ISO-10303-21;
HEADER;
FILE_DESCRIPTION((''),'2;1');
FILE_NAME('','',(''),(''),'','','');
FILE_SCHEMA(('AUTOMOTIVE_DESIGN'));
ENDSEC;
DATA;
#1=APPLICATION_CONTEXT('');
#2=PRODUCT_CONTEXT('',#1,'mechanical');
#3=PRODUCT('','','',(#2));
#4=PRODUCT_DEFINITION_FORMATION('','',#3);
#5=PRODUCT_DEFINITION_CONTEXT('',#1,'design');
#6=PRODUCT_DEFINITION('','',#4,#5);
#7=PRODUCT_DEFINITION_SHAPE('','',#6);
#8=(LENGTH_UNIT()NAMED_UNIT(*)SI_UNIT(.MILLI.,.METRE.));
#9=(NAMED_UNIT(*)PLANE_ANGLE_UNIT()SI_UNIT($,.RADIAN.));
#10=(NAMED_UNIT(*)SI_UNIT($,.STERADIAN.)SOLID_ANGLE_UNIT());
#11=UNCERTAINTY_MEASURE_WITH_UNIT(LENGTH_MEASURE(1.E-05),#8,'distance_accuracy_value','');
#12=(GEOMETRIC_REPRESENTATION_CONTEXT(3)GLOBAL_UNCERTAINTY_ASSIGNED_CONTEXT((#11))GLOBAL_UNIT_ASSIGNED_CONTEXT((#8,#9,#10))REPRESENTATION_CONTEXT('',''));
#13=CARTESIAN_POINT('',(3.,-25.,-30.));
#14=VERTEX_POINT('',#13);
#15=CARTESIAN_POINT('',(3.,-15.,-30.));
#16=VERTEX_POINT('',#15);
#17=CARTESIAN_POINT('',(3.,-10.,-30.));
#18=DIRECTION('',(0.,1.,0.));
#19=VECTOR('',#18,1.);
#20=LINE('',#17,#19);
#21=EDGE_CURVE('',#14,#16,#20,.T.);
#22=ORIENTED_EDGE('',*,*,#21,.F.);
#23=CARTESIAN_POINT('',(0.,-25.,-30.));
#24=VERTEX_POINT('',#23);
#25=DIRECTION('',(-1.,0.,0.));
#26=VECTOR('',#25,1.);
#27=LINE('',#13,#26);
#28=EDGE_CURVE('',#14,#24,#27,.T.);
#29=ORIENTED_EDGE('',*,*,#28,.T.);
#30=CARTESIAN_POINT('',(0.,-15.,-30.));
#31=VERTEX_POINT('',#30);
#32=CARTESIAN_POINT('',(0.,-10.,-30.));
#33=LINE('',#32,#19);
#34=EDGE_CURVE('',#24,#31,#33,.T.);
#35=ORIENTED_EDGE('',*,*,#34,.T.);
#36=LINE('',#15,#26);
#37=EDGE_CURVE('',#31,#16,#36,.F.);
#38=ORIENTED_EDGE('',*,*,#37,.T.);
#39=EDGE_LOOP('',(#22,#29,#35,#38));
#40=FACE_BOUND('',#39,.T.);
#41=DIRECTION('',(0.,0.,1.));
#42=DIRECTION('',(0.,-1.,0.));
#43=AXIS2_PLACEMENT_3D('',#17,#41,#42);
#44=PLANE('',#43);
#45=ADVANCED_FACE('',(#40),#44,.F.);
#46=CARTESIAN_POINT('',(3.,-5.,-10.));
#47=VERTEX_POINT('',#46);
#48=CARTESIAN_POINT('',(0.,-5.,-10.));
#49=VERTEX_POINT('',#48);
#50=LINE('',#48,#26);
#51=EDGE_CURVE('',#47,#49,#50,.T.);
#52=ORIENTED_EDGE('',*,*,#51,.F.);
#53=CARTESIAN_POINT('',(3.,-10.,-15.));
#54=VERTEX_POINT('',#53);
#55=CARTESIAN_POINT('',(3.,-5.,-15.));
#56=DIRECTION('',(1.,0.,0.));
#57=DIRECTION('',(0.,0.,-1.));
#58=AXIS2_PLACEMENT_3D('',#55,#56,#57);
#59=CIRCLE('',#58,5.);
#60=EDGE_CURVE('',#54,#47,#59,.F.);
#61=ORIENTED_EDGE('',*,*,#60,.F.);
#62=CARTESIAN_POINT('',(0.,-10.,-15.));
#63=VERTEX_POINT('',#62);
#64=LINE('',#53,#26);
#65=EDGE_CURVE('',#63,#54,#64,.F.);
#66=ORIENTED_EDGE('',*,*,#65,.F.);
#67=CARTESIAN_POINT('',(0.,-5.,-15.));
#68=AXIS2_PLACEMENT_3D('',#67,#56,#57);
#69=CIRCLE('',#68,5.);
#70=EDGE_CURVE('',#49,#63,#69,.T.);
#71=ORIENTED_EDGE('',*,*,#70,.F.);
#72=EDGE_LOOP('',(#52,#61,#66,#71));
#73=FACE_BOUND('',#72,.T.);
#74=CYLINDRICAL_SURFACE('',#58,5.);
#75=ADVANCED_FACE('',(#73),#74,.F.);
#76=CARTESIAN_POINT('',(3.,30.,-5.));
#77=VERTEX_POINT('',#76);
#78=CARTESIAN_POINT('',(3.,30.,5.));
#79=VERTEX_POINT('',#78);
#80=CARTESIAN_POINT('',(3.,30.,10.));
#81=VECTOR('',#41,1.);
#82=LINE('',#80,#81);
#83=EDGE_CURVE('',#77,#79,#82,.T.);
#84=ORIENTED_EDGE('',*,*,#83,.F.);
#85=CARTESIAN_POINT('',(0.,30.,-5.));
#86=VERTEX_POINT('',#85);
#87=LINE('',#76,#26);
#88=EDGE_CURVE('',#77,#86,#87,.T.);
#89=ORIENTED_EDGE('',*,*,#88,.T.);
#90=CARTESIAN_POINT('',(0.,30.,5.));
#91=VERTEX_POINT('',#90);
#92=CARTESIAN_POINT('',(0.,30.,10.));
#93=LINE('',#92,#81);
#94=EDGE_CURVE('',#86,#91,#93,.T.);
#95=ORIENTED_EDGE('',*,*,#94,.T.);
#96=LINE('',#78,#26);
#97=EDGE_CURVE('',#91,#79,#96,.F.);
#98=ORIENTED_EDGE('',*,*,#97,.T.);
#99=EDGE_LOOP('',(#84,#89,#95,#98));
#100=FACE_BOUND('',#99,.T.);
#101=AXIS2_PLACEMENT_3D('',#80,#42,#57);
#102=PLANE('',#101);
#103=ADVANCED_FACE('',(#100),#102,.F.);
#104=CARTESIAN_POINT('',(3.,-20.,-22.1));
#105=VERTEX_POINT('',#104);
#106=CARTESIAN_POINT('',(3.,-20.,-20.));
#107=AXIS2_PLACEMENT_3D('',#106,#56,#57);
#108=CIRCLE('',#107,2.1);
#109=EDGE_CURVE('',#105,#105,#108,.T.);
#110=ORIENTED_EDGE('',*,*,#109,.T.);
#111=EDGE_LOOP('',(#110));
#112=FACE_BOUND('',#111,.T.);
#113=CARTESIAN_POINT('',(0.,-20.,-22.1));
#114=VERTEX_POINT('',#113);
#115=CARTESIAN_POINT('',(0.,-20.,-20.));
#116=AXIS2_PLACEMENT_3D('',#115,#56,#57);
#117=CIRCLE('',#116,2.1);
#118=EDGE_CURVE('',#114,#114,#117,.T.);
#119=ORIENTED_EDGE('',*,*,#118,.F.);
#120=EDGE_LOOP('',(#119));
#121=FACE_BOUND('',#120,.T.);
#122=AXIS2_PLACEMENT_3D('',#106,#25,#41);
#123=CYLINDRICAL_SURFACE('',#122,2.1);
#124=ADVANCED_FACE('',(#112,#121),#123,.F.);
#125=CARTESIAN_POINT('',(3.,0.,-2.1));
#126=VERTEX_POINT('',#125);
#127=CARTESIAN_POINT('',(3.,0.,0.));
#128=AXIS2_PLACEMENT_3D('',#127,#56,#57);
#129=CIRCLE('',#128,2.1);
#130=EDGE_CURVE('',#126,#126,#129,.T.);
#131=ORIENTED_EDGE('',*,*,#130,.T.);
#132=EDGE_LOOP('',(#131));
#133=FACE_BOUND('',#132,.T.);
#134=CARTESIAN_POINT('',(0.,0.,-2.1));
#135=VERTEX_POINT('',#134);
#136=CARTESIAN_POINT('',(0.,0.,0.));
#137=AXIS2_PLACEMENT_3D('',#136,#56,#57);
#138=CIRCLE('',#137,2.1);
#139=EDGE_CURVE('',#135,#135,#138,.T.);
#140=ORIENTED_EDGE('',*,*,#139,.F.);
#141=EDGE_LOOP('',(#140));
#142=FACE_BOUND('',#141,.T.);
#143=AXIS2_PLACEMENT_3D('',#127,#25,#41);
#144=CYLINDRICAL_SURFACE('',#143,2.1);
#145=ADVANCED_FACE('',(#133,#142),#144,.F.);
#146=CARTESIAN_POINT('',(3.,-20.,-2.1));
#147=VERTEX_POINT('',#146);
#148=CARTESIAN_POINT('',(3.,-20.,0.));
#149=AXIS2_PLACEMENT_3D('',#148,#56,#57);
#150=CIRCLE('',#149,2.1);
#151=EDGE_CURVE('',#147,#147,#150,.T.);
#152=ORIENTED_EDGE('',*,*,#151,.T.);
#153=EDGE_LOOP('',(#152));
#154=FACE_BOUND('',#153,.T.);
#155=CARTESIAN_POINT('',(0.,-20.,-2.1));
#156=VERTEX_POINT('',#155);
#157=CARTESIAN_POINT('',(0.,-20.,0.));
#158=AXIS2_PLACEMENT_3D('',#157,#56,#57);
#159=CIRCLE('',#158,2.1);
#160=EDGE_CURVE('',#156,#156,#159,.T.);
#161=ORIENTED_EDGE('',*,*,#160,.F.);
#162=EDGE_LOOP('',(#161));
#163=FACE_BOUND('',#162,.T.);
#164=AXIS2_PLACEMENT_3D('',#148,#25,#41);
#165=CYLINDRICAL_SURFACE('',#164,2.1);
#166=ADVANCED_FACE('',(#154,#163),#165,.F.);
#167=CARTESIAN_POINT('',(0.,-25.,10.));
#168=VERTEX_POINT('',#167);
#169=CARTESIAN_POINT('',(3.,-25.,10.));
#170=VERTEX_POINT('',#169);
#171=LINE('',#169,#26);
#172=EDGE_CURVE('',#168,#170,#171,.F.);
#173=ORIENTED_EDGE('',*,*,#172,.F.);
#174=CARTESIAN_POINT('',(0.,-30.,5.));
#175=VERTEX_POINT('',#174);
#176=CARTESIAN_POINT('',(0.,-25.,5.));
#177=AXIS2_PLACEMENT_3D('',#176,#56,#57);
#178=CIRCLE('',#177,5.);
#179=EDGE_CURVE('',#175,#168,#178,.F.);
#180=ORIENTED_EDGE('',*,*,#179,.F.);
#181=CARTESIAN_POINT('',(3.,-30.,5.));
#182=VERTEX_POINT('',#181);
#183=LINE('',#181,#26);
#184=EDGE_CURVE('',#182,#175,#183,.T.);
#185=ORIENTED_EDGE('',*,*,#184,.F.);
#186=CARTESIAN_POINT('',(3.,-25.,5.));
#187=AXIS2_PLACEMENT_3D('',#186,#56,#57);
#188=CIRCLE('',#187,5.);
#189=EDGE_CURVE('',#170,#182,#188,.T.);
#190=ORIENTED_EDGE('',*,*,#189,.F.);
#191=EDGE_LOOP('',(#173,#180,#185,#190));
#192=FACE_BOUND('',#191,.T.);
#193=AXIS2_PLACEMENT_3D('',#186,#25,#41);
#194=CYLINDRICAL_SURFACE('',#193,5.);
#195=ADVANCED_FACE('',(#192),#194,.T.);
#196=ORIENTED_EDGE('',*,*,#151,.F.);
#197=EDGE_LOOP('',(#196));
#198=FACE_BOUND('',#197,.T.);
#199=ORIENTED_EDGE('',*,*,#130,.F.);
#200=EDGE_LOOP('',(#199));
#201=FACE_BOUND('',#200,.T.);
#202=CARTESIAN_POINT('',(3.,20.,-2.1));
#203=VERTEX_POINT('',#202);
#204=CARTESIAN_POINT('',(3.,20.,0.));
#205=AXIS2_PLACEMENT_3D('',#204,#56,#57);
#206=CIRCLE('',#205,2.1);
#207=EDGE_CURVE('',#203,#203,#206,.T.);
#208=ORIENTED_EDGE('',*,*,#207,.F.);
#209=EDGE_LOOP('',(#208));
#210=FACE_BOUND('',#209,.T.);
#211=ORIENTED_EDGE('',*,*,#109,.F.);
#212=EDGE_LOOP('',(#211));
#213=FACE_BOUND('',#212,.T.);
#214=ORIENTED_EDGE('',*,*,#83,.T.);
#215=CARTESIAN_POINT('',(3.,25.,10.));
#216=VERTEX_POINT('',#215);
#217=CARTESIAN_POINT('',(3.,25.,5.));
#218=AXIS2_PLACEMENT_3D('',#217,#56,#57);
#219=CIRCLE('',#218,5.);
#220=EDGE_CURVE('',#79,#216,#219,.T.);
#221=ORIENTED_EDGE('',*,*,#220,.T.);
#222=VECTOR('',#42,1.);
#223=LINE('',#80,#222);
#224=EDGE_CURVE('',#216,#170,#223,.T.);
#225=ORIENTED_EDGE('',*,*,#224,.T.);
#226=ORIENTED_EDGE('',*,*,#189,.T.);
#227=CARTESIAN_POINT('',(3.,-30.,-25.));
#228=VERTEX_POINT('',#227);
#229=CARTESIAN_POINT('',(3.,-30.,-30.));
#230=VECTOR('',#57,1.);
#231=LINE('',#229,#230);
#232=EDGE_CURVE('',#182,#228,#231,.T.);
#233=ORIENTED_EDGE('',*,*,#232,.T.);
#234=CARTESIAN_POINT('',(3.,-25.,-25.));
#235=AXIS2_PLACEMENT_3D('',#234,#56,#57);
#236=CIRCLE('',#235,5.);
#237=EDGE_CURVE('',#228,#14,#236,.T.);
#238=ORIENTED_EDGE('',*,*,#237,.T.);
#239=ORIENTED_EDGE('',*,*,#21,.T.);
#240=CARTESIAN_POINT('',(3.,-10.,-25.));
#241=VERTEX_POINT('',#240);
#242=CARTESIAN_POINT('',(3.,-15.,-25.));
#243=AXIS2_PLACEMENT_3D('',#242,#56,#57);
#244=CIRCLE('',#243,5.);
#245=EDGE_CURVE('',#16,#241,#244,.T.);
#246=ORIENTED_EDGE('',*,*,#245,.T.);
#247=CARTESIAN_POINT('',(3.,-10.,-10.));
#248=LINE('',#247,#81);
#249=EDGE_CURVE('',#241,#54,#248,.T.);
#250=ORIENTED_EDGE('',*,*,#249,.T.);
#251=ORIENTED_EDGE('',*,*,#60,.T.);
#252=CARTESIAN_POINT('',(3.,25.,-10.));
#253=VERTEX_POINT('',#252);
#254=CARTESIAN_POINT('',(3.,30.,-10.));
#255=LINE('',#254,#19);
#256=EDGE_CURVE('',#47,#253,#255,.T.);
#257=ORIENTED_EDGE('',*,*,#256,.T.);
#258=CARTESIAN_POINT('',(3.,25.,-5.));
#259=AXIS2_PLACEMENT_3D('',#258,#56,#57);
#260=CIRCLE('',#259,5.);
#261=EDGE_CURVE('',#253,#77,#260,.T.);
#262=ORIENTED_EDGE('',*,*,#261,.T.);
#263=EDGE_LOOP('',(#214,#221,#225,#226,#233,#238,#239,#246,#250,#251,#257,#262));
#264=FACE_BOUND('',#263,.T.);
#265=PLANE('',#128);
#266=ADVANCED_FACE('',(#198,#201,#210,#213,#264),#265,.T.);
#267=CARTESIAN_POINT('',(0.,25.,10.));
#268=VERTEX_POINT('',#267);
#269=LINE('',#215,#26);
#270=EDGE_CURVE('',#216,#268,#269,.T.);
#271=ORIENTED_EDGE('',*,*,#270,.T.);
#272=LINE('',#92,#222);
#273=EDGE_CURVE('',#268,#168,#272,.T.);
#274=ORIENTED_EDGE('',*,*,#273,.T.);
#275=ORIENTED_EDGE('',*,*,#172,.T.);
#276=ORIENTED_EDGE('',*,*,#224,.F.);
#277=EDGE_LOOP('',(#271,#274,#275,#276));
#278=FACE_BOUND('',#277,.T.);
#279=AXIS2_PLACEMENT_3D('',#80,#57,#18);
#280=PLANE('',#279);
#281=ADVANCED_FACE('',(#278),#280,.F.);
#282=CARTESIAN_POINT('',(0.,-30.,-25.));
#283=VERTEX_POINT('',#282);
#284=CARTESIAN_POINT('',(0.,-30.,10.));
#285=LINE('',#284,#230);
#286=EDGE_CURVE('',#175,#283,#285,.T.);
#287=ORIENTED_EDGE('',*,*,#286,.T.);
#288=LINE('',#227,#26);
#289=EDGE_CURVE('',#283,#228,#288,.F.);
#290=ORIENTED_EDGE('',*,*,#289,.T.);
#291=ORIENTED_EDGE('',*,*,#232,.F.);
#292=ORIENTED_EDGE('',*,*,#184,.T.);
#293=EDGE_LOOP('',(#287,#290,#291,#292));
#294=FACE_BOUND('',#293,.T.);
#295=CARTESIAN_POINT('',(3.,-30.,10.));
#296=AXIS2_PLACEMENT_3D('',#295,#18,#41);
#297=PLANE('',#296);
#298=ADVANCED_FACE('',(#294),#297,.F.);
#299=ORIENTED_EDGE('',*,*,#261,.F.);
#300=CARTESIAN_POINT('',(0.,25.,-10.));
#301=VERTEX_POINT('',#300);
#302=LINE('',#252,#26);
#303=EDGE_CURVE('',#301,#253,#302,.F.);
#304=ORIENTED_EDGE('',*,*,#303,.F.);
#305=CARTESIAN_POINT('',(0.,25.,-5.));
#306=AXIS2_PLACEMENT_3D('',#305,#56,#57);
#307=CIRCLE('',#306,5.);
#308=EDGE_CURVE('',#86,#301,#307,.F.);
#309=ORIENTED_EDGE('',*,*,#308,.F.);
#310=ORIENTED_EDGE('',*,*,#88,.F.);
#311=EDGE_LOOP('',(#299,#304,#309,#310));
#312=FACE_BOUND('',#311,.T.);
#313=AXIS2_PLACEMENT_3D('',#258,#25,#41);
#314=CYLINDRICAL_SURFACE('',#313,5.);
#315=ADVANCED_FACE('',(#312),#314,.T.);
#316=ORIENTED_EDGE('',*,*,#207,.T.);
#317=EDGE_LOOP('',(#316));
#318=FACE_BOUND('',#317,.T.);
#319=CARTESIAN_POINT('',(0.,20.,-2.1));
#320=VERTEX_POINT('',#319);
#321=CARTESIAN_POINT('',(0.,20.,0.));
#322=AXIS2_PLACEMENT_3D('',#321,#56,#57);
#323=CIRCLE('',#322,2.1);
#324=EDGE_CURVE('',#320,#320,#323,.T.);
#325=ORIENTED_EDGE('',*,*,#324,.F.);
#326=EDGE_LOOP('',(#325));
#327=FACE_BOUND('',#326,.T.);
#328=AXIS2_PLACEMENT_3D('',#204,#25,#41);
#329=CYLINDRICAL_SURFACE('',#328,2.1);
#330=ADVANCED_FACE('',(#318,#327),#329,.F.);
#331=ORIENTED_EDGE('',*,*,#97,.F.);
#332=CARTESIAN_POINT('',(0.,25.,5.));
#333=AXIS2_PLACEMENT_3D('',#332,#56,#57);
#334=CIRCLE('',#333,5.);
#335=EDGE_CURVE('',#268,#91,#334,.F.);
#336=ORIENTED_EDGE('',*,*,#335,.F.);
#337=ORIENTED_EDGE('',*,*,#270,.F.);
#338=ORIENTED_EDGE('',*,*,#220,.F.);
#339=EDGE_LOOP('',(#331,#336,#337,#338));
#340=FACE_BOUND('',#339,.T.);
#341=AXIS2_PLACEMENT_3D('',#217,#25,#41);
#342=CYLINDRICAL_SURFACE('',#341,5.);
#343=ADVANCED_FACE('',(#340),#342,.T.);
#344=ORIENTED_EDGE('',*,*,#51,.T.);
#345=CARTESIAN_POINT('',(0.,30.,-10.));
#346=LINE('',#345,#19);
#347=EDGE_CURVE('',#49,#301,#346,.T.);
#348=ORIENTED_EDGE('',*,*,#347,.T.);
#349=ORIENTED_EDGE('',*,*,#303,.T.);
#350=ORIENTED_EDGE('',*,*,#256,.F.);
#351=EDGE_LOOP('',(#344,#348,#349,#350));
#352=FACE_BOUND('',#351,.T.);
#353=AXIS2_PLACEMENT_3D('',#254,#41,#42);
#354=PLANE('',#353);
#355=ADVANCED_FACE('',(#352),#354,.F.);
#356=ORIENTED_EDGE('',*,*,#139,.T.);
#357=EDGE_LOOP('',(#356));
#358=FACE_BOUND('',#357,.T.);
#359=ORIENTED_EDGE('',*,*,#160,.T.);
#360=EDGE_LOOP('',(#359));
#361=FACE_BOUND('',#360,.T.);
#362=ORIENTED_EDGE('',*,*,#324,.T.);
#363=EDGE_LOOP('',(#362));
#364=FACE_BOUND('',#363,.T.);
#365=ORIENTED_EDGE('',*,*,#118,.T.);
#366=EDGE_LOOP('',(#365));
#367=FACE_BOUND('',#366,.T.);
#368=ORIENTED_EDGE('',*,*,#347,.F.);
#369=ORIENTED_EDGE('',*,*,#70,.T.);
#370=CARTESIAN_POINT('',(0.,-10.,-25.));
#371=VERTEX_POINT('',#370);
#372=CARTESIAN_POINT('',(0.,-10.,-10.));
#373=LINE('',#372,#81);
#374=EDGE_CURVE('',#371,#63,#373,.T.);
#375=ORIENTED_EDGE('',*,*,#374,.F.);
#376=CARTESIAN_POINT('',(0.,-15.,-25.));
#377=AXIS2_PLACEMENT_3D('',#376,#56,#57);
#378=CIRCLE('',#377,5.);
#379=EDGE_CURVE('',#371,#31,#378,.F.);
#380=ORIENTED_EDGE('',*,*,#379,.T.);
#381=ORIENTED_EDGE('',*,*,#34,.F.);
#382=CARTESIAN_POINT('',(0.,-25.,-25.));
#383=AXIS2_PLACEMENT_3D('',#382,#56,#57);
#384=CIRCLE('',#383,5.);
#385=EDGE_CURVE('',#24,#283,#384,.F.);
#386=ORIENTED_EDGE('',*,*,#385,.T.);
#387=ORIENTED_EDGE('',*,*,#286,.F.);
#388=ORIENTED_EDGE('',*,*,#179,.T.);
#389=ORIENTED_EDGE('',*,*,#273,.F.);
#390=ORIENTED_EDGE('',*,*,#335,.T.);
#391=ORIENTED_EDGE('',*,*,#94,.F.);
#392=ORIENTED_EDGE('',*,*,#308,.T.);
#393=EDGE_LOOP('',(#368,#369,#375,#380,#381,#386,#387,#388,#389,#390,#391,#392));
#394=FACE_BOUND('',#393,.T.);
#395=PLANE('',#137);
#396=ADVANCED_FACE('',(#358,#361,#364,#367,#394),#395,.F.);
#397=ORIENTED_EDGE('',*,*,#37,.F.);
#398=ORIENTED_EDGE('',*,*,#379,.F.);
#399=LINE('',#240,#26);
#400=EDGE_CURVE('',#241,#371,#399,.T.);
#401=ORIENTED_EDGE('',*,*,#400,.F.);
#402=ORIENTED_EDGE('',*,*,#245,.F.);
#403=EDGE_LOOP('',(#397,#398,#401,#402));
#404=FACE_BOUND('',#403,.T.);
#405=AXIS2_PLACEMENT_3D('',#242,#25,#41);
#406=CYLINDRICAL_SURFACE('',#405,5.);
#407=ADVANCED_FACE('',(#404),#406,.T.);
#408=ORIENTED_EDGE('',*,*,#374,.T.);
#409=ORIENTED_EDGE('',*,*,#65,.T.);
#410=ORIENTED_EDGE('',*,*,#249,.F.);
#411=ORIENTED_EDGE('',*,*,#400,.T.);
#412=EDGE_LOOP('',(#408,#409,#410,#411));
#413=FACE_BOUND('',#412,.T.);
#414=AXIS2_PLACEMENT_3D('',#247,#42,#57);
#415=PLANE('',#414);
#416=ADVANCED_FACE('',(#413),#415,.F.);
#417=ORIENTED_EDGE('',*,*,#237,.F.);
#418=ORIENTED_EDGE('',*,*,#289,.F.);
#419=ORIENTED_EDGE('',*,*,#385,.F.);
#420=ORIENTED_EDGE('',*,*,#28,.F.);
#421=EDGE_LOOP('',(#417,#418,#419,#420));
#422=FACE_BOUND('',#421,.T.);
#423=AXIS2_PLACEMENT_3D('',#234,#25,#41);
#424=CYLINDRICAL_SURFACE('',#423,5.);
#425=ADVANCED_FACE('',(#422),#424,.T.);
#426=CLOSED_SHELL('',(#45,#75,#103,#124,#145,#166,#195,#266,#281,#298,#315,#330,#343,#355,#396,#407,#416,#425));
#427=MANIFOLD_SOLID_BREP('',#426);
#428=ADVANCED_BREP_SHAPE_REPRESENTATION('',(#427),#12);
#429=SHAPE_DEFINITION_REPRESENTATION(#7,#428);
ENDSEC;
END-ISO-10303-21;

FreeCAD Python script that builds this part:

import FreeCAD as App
import Part
import Sketcher
from FreeCAD import Vector
Q = App.Units.Quantity


def edges_at(feature, points):
    """Names of the edges that pass closest to the given points."""
    edges = feature.Shape.Edges
    near = lambda p: min(range(len(edges)), key=lambda i: edges[i].distToShape(Part.Vertex(*p))[0])
    return sorted({f"Edge{near(p) + 1}" for p in points})


def add_polygon(sketch, points):
    """Adds a closed chain of lines whose ends are joined by coincident constraints."""
    first, n = sketch.GeometryCount, len(points)
    for a, b in zip(points, points[1:] + points[:1]):
        sketch.addGeometry(Part.LineSegment(App.Vector(*a, 0), App.Vector(*b, 0)), False)
    for i in range(n):
        sketch.addConstraint(Sketcher.Constraint("Coincident", first + i, 2, first + (i + 1) % n, 1))

doc = App.newDocument("Part")
params = doc.addObject("Spreadsheet::Sheet", "Params")
for row, (alias, value) in enumerate([
    ("sketch1_diameter", "4.2 mm"),
    ("sketch1_width", "40 mm"),
    ("pad1_length", "3 mm"),
    ("fillet_radius", "5 mm"),
], start=1):
    params.set(f"A{row}", alias)
    params.set(f"B{row}", "=" + value)
    params.setAlias(f"B{row}", alias)

body = doc.addObject("PartDesign::Body", "Body")

# Sketch on YZ plane
sketch1 = body.newObject("Sketcher::SketchObject", "Sketch")
sketch1.AttachmentSupport = (doc.getObject("YZ_Plane"), [""])
sketch1.MapMode = "FlatFace"
add_polygon(sketch1, [(-10, -30), (-10, -10), (30, -10), (30, 10), (-30, 10), (-30, -30)])  # lines 0-5
sketch1.addGeometry(Part.Circle(Vector(-20, -20, 0), Vector(0, 0, 1), 2.1), False)  # 6
sketch1.addGeometry(Part.Circle(Vector(-20, 0, 0), Vector(0, 0, 1), 2.1), False)  # 7
sketch1.addGeometry(Part.Circle(Vector(0, 0, 0), Vector(0, 0, 1), 2.1), False)  # 8
sketch1.addGeometry(Part.Circle(Vector(20, 0, 0), Vector(0, 0, 1), 2.1), False)  # 9
sketch1.addConstraint([
    Sketcher.Constraint("Vertical", 0),
    Sketcher.Constraint("Horizontal", 1),
    Sketcher.Constraint("Vertical", 2),
    Sketcher.Constraint("Horizontal", 3),
    Sketcher.Constraint("Vertical", 4),
    Sketcher.Constraint("Horizontal", 5),
    Sketcher.Constraint("Coincident", 8, 3, -1, 1),
    Sketcher.Constraint("Equal", 6, 7),
    Sketcher.Constraint("Equal", 7, 8),
    Sketcher.Constraint("Equal", 8, 9),
    Sketcher.Constraint("Symmetric", 7, 3, 9, 3, -1, 1),
    Sketcher.Constraint("Symmetric", 1, 2, 3, 2, -1, 1),
    Sketcher.Constraint("PointOnObject", 7, 3, -1),
    Sketcher.Constraint("Vertical", 6, 3, 7, 3),
    Sketcher.Constraint("Equal", 5, 0),
    Sketcher.Constraint("Equal", 0, 2),
    Sketcher.Constraint("Equal", 1, 4),
    Sketcher.Constraint("Diameter", 6, Q("4.2 mm")),
    Sketcher.Constraint("DistanceX", 1, 1, 1, 2, Q("40 mm")),
    Sketcher.Constraint("DistanceX", 6, 3, -1, 1, Q("20 mm")),
    Sketcher.Constraint("DistanceY", 6, 3, -1, 1, Q("20 mm")),
])
sketch1.setExpression("Constraints[23]", "Params.sketch1_diameter")
sketch1.setExpression("Constraints[24]", "Params.sketch1_width")
pad1 = body.newObject("PartDesign::Pad", "Pad")
pad1.Profile = sketch1
pad1.setExpression("Length", "Params.pad1_length")
doc.recompute()

fillet = body.newObject("PartDesign::Fillet", "Fillet")
fillet.Base = (pad1, edges_at(pad1, [
    (1.5, -30, 10),
    (1.5, 30, 10),
    (1.5, 30, -10),
    (1.5, -10, -10),
    (1.5, -10, -30),
    (1.5, -30, -30),
]))
fillet.setExpression("Radius", "Params.fillet_radius")

doc.recompute()
